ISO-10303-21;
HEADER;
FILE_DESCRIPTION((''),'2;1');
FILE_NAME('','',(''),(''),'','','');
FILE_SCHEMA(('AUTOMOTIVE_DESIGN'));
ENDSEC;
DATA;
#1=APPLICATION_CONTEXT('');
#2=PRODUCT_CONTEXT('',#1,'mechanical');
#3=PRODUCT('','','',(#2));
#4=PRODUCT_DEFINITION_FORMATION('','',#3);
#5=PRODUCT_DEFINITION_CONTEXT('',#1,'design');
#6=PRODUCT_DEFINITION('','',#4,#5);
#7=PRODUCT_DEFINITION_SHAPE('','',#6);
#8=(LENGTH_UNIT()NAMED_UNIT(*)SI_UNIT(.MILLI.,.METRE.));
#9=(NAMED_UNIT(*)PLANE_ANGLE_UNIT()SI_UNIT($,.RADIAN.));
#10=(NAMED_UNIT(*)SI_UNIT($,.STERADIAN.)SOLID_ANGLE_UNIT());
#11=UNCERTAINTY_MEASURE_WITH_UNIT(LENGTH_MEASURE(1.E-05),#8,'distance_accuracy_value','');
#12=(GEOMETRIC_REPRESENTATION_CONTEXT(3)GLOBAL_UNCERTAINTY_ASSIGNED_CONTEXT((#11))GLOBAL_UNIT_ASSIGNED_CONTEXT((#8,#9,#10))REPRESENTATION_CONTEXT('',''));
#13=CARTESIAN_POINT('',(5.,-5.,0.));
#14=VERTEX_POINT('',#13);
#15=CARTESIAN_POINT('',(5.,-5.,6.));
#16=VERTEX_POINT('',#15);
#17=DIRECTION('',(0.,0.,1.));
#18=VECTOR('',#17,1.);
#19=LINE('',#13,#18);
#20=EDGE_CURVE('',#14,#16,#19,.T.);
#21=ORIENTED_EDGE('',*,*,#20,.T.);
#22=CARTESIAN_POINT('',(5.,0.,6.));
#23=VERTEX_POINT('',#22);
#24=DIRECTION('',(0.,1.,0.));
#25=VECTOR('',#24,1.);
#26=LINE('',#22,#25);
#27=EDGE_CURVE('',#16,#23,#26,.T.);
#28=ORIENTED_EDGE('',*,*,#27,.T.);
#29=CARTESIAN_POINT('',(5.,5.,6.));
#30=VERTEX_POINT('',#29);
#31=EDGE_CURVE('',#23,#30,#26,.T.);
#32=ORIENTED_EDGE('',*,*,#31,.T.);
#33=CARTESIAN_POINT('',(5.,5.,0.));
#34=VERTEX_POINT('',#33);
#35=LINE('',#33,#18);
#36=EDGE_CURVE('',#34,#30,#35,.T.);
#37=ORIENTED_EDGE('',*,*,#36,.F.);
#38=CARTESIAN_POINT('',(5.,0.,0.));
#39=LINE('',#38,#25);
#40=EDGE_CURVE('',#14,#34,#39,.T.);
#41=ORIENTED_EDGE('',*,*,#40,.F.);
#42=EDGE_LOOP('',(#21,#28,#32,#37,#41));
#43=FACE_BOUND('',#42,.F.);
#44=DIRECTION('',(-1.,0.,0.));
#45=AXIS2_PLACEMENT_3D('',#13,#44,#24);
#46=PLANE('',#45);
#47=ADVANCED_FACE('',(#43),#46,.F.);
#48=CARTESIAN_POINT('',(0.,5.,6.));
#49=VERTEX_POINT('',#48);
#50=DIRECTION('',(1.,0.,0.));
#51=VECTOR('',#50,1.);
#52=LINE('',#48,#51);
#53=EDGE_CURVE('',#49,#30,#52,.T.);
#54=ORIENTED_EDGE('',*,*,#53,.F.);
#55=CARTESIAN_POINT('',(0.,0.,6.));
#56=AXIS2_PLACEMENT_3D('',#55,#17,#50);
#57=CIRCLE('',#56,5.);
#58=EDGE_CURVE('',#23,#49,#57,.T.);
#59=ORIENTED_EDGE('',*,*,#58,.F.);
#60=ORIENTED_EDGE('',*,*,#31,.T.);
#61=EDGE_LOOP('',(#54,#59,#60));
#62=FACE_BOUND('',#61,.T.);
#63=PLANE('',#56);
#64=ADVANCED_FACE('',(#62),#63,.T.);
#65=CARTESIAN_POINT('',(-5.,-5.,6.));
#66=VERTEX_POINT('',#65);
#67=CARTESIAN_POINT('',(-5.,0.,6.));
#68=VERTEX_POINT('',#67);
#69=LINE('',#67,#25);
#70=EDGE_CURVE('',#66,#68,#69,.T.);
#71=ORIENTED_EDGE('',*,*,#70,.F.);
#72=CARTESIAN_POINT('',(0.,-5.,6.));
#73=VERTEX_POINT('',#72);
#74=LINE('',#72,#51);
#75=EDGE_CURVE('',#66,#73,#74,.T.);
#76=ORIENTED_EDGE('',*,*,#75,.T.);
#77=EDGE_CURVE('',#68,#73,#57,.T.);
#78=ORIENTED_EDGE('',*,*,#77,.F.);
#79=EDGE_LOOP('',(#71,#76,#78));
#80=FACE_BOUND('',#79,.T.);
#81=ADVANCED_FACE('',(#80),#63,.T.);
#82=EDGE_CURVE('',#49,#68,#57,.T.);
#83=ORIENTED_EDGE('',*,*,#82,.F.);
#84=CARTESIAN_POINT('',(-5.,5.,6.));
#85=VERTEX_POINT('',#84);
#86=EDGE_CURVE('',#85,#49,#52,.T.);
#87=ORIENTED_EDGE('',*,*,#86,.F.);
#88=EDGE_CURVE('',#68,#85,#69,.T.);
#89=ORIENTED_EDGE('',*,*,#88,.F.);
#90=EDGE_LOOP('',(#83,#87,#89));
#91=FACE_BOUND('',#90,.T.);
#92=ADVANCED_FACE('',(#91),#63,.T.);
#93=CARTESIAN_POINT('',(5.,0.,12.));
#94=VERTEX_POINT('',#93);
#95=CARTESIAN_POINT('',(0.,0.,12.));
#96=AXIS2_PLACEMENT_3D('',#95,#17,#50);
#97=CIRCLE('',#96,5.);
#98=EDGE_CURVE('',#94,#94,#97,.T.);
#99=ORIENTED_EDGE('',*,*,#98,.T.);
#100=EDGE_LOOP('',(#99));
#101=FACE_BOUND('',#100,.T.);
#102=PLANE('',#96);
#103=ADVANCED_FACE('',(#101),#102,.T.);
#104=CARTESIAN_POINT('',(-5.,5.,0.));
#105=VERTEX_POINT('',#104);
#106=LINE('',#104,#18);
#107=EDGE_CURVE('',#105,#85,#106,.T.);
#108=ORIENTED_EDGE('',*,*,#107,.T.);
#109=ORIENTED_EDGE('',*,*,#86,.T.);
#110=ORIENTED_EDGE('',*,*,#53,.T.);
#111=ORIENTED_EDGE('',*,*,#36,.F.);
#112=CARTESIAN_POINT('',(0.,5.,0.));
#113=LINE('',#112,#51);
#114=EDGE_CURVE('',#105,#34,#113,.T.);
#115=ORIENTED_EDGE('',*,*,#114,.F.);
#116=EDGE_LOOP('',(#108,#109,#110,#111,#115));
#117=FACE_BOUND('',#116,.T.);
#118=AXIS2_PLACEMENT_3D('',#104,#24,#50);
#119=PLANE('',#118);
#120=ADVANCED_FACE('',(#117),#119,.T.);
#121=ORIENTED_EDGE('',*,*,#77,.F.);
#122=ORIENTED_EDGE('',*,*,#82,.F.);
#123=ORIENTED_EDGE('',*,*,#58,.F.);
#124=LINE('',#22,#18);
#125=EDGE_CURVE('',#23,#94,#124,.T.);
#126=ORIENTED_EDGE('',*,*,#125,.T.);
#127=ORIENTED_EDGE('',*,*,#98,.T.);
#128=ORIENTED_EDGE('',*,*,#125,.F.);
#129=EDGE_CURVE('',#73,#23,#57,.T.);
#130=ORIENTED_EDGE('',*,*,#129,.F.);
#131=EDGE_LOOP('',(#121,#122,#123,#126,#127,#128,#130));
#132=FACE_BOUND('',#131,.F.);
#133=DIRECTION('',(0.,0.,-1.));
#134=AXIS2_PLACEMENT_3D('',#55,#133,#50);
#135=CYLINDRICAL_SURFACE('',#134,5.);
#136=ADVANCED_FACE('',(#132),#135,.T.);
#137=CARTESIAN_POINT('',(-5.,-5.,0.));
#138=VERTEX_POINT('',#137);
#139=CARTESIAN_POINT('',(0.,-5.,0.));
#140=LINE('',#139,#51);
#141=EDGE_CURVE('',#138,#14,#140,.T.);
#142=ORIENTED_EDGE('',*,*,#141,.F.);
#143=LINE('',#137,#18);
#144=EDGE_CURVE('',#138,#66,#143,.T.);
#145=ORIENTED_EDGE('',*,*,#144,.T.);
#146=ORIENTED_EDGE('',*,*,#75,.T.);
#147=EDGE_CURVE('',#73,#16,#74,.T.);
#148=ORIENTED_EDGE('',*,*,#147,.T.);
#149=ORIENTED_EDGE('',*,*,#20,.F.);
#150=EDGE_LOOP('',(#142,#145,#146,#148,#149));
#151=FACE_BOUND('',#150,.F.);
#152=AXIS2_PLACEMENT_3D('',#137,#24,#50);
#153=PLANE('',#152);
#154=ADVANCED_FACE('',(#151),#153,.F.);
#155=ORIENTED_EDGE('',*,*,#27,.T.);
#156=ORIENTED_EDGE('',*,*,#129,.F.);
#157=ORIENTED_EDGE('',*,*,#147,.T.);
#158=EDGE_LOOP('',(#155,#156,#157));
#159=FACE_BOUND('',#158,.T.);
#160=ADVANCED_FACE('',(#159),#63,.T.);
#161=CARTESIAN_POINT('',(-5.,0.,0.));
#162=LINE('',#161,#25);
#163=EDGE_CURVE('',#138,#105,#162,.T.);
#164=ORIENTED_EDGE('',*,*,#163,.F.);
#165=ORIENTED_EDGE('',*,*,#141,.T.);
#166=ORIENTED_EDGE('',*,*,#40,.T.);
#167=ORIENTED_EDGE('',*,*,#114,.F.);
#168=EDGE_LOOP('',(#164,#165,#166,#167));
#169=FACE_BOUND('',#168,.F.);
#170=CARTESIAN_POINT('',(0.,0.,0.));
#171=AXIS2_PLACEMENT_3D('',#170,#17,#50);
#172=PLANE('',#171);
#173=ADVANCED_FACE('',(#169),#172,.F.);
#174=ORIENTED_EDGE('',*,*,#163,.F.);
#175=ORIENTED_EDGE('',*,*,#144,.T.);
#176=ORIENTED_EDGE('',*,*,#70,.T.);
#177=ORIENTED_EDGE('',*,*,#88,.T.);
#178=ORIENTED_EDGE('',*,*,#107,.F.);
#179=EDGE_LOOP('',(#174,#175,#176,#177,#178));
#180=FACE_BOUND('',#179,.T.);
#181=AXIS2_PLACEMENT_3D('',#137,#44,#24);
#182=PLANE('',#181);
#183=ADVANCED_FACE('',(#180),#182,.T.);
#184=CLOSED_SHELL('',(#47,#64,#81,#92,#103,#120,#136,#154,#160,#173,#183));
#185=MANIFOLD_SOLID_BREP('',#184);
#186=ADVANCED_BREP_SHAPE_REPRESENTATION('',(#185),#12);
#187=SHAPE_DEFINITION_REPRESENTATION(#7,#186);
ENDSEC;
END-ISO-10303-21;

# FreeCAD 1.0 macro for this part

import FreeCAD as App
import Part
import Sketcher

V = App.Vector
Q = App.Units.Quantity


def add_polygon(sketch, points):
    """Adds a closed chain of lines whose ends are joined by coincident constraints."""
    first, n = sketch.GeometryCount, len(points)
    for a, b in zip(points, points[1:] + points[:1]):
        sketch.addGeometry(Part.LineSegment(App.Vector(*a, 0), App.Vector(*b, 0)), False)
    for i in range(n):
        sketch.addConstraint(Sketcher.Constraint("Coincident", first + i, 2, first + (i + 1) % n, 1))

doc = App.newDocument("Part")
params = doc.addObject("Spreadsheet::Sheet", "Params")
for row, (alias, value) in enumerate([
    ("sketch1_width", "10 mm"),
    ("pad1_length", "6 mm"),
    ("sketch2_diameter", "10 mm"),
    ("pad2_length", "6 mm"),
], start=1):
    params.set(f"A{row}", alias)
    params.set(f"B{row}", "=" + value)
    params.setAlias(f"B{row}", alias)

body = doc.addObject("PartDesign::Body", "Body")

# Sketch on XY plane
sketch1 = body.newObject("Sketcher::SketchObject", "Sketch")
sketch1.AttachmentSupport = (doc.getObject("XY_Plane"), [""])
sketch1.MapMode = "FlatFace"
add_polygon(sketch1, [(-5, 5), (-5, -5), (5, -5), (5, 5)])  # lines 0-3
sketch1.addConstraint(Sketcher.Constraint("Vertical", 0))
sketch1.addConstraint(Sketcher.Constraint("Horizontal", 1))
sketch1.addConstraint(Sketcher.Constraint("Vertical", 2))
sketch1.addConstraint(Sketcher.Constraint("Horizontal", 3))
sketch1.addConstraint(Sketcher.Constraint("Symmetric", 0, 2, 2, 2, -1, 1))
sketch1.addConstraint(Sketcher.Constraint("Equal", 3, 0))
sketch1.addConstraint(Sketcher.Constraint("DistanceX", 1, 1, 1, 2, Q("10 mm")))
sketch1.setExpression("Constraints[10]", "Params.sketch1_width")
pad1 = body.newObject("PartDesign::Pad", "Pad")
pad1.Profile = sketch1
pad1.setExpression("Length", "Params.pad1_length")

# Sketch on XY plane
sketch2 = body.newObject("Sketcher::SketchObject", "Sketch001")
sketch2.AttachmentSupport = (doc.getObject("XY_Plane"), [""])
sketch2.MapMode = "FlatFace"
sketch2.AttachmentOffset = App.Placement(V(0, 0, 6), App.Rotation())
sketch2.addGeometry(Part.Circle(V(0, 0, 0), V(0, 0, 1), 5), False)
sketch2.addConstraint(Sketcher.Constraint("Coincident", 0, 3, -1, 1))
sketch2.addConstraint(Sketcher.Constraint("Diameter", 0, Q("10 mm")))
sketch2.setExpression("Constraints[1]", "Params.sketch2_diameter")
pad2 = body.newObject("PartDesign::Pad", "Pad001")
pad2.Profile = sketch2
pad2.setExpression("Length", "Params.pad2_length")

doc.recompute()
